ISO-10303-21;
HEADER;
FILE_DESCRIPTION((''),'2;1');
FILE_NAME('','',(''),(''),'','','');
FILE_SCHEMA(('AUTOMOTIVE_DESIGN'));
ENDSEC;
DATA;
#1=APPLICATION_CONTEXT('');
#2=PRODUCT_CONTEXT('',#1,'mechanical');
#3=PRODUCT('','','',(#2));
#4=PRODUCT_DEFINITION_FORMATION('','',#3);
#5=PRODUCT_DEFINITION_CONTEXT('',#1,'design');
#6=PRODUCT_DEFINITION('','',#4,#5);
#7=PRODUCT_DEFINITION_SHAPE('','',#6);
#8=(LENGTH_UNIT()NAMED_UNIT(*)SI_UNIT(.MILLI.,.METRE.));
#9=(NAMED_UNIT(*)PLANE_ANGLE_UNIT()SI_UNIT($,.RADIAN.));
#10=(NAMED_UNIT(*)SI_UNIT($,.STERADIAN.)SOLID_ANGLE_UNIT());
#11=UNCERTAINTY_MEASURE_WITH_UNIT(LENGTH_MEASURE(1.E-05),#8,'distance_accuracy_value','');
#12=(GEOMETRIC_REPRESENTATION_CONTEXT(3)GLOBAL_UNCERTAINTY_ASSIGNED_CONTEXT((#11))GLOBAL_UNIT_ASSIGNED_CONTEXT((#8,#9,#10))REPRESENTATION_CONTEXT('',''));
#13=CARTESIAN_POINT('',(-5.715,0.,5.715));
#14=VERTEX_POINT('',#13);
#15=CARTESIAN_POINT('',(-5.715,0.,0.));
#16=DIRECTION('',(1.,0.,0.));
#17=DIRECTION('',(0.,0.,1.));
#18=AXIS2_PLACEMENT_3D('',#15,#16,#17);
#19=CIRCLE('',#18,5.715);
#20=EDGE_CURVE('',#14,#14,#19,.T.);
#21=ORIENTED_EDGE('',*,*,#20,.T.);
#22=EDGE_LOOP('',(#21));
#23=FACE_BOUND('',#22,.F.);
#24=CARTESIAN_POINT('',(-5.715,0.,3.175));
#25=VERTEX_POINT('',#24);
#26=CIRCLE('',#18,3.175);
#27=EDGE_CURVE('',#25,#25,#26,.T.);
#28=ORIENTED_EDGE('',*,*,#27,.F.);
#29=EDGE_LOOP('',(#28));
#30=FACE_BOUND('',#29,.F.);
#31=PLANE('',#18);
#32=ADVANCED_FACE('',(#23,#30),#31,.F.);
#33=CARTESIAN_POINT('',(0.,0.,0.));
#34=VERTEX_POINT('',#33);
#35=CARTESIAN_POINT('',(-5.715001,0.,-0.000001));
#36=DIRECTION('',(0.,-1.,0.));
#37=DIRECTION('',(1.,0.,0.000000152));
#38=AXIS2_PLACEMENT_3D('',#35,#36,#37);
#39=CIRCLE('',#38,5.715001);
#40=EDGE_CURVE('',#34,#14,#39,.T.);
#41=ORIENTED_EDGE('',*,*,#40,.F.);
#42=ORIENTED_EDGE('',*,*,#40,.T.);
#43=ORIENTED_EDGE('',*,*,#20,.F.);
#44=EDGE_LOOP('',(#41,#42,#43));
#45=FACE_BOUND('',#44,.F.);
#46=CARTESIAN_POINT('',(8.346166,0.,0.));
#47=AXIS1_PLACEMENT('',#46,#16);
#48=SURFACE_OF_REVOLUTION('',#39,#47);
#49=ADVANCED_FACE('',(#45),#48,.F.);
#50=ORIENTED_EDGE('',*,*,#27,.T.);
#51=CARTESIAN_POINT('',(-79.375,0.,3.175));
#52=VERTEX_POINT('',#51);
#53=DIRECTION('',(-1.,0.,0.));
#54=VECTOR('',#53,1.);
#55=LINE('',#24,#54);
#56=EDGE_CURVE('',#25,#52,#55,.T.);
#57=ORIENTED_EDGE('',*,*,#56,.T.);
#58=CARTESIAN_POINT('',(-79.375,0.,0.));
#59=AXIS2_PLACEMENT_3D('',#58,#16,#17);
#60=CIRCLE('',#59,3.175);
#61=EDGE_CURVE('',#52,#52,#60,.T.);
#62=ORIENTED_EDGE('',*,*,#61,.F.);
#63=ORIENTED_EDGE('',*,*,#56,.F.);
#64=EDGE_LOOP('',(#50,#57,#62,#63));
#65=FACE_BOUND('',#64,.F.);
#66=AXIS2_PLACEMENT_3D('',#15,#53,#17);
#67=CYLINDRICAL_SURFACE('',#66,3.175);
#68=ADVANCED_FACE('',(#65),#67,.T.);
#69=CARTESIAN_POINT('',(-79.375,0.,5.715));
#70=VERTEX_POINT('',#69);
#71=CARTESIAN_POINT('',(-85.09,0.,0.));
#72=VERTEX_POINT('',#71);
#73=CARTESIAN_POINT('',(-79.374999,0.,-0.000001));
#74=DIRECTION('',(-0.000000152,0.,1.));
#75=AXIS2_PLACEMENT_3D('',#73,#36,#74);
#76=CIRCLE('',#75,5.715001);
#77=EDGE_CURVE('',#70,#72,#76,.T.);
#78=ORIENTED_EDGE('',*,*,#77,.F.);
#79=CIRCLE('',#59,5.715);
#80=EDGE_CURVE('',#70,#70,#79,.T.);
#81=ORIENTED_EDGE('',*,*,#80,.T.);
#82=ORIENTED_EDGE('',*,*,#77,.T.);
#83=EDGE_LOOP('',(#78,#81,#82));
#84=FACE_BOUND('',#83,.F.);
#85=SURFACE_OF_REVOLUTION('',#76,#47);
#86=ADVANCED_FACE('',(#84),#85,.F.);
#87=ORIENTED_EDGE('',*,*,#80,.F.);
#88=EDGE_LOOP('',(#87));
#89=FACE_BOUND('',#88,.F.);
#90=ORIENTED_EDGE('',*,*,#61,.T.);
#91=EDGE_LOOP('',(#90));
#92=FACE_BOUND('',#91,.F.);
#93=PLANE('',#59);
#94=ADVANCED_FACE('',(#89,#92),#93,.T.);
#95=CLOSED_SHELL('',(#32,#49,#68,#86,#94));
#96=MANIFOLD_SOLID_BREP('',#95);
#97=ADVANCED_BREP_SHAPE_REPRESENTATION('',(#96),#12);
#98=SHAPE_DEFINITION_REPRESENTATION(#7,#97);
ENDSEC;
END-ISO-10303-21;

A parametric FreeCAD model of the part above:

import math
import FreeCAD as App
import Part
import Sketcher
from FreeCAD import Vector
Q = App.Units.Quantity

doc = App.newDocument("Part")
body = doc.addObject("PartDesign::Body", "Body")

# Sketch on XZ plane
sketch1 = doc.addObject("Sketcher::SketchObject", "Sketch")
body.addObject(sketch1)
sketch1.AttachmentSupport = (doc.XZ_Plane, [""])
sketch1.MapMode = "FlatFace"
sketch1.addGeometry([
    Part.LineSegment(Vector(-79.4, 3.2, 0), Vector(-79.4, 5.7, 0)),  # 0
    Part.ArcOfCircle(Part.Circle(Vector(-79.4, 0, 0), Vector(0, 0, 1), 5.7), math.radians(90), math.radians(180)),  # 1
    Part.LineSegment(Vector(-85.1, 0, 0), Vector(0, 0, 0)),  # 2
    Part.ArcOfCircle(Part.Circle(Vector(-5.7, 0, 0), Vector(0, 0, 1), 5.7), math.radians(0), math.radians(90)),  # 3
    Part.LineSegment(Vector(-5.7, 5.7, 0), Vector(-5.7, 3.2, 0)),  # 4
    Part.LineSegment(Vector(-5.7, 3.2, 0), Vector(-79.4, 3.2, 0)),  # 5
], False)
sketch1.addConstraint([
    Sketcher.Constraint("Coincident", 0, 2, 1, 1),
    Sketcher.Constraint("Coincident", 1, 2, 2, 1),
    Sketcher.Constraint("Coincident", 2, 2, 3, 1),
    Sketcher.Constraint("Coincident", 3, 2, 4, 1),
    Sketcher.Constraint("Coincident", 4, 2, 5, 1),
    Sketcher.Constraint("Coincident", 5, 2, 0, 1),
    Sketcher.Constraint("Vertical", 0),
    Sketcher.Constraint("Horizontal", 2),
    Sketcher.Constraint("Vertical", 4),
    Sketcher.Constraint("Horizontal", 5),
    Sketcher.Constraint("Coincident", 2, 2, -1, 1),
    Sketcher.Constraint("Equal", 1, 3),
    Sketcher.Constraint("PointOnObject", 1, 3, -1),
    Sketcher.Constraint("PointOnObject", 3, 3, -1),
    Sketcher.Constraint("Vertical", 1, 3, 0, 2),
    Sketcher.Constraint("DistanceX", 5, 2, 5, 1, Q("2.9 in")),
    Sketcher.Constraint("DistanceY", 0, 1, 0, 2, Q("0.1 in")),
    Sketcher.Constraint("Radius", 1, Q("0.225 in")),
    Sketcher.Constraint("DistanceX", 2, 1, 2, 2, Q("3.35 in")),
])
revolution = doc.addObject("PartDesign::Revolution", "Revolution")
body.addObject(revolution)
revolution.Profile = sketch1
revolution.ReferenceAxis = (sketch1, ["H_Axis"])
revolution.Angle = 360

doc.recompute()
